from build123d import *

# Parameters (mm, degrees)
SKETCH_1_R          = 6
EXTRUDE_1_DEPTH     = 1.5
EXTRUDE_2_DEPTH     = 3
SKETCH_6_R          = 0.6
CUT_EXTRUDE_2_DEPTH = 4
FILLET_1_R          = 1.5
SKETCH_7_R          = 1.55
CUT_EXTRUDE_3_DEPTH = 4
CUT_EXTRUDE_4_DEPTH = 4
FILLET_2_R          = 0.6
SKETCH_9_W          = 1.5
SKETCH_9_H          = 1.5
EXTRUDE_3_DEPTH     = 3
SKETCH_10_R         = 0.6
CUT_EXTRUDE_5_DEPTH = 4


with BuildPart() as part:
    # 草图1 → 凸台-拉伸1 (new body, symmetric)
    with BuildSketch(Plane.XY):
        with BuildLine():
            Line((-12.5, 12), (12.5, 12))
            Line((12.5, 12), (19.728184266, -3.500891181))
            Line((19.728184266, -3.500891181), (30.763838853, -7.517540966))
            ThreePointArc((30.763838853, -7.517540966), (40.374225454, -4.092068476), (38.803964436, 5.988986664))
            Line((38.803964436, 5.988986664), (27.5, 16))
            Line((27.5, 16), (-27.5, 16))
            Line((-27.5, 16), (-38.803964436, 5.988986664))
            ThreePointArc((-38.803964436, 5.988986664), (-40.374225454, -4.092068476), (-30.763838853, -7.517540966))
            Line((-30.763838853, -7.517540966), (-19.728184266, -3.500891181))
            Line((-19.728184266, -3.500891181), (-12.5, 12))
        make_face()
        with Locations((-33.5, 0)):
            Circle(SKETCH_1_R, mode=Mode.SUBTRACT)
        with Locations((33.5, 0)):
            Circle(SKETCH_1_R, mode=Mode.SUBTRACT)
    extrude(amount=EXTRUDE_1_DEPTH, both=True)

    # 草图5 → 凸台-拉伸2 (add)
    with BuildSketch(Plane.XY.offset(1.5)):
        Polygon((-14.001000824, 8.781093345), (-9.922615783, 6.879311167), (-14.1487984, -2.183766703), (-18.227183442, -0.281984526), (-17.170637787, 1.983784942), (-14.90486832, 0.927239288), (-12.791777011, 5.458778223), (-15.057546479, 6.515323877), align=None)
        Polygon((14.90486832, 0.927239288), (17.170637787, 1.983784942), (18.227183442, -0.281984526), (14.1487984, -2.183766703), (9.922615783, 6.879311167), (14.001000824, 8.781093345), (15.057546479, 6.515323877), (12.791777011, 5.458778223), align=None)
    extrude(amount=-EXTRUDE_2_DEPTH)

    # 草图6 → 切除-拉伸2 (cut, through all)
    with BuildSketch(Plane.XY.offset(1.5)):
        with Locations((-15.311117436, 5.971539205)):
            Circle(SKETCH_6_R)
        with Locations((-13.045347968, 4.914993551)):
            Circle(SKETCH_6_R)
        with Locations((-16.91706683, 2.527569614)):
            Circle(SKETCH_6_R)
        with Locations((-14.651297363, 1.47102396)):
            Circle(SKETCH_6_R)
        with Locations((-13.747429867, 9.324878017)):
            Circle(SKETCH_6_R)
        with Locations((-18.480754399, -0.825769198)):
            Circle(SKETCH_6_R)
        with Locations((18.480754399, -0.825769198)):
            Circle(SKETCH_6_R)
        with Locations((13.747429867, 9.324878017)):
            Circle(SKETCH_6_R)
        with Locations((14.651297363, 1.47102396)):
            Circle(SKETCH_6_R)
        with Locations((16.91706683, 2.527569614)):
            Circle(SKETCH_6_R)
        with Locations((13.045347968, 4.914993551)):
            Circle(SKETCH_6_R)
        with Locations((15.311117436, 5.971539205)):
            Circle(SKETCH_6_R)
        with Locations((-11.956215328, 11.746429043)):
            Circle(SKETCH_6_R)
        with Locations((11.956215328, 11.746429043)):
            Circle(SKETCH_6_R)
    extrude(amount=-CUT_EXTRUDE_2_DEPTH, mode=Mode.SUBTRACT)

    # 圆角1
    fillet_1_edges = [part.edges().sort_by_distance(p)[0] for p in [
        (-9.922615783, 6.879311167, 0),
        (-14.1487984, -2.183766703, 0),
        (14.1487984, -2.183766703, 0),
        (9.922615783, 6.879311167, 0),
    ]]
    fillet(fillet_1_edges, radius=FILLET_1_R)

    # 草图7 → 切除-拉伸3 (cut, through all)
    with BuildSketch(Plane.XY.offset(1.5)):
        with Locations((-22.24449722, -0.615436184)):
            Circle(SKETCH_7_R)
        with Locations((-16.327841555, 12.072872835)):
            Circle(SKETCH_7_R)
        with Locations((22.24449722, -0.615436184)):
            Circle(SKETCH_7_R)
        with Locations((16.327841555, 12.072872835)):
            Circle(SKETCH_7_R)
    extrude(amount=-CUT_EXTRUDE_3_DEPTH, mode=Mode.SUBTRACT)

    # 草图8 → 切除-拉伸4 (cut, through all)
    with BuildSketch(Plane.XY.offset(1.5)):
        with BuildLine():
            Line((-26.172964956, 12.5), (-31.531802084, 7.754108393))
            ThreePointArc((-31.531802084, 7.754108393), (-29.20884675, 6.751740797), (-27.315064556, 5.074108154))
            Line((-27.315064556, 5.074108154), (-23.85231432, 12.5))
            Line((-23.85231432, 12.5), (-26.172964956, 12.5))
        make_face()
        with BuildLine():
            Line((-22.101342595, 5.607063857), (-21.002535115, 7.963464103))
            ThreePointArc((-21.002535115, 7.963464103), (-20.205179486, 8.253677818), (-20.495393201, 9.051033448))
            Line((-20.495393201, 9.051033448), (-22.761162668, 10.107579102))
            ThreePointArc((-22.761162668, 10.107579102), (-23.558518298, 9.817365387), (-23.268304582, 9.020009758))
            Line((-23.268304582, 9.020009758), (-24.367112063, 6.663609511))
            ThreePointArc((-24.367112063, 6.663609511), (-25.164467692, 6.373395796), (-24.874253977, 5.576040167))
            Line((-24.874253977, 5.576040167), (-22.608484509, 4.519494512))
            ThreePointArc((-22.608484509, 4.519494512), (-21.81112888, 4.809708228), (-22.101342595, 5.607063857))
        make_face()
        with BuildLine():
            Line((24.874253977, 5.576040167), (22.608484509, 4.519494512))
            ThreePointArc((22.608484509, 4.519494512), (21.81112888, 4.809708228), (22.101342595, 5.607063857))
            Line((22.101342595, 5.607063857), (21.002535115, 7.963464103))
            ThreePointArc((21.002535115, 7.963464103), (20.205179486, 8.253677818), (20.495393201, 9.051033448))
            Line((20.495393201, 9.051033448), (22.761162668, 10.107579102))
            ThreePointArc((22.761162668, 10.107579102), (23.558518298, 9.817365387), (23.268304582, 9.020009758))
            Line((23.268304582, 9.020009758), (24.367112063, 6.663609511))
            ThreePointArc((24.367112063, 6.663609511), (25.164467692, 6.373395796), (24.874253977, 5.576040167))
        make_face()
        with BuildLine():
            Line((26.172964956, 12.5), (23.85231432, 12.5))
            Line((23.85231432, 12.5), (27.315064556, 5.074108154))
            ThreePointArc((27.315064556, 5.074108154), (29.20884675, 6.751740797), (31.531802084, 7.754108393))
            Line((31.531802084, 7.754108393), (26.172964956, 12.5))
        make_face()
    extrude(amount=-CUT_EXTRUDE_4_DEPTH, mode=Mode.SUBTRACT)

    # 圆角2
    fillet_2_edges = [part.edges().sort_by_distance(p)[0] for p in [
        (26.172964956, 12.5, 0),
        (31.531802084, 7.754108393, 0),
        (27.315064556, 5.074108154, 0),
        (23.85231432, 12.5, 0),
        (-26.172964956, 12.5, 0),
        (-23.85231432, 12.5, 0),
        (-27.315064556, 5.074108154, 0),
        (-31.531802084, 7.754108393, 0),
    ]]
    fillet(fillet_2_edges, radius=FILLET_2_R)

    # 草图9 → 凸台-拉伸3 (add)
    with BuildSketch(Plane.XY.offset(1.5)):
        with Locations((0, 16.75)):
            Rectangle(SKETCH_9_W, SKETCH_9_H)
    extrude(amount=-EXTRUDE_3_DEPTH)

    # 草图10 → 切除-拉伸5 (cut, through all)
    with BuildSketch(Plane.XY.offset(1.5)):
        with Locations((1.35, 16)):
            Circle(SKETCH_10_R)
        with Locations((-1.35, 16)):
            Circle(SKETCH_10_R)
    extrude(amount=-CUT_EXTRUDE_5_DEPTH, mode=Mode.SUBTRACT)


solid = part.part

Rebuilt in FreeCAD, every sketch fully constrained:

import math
import FreeCAD as App
import Part
import Sketcher
from FreeCAD import Vector
Q = App.Units.Quantity


def edges_at(feature, points):
    """Names of the edges that pass closest to the given points."""
    edges = feature.Shape.Edges
    near = lambda p: min(range(len(edges)), key=lambda i: edges[i].distToShape(Part.Vertex(*p))[0])
    return sorted({f"Edge{near(p) + 1}" for p in points})

doc = App.newDocument("Part")
body = doc.addObject("PartDesign::Body", "Body")

# Sketch on XY plane
sketch1 = body.newObject("Sketcher::SketchObject", "Sketch")
sketch1.AttachmentSupport = (doc.getObject("XY_Plane"), [""])
sketch1.MapMode = "FlatFace"
sketch1.addGeometry(Part.LineSegment(Vector(-12, 12, 0), Vector(12, 12, 0)), False)
sketch1.addGeometry(Part.LineSegment(Vector(12, 12, 0), Vector(20, -4, 0)), False)
sketch1.addGeometry(Part.LineSegment(Vector(20, -4, 0), Vector(31, -8, 0)), False)
sketch1.addGeometry(Part.ArcOfCircle(Part.Circle(Vector(34, 0, 0), Vector(0, 0, 1), 8), math.radians(-110), math.radians(48)), False)
sketch1.addGeometry(Part.LineSegment(Vector(39, 6, 0), Vector(28, 16, 0)), False)
sketch1.addGeometry(Part.LineSegment(Vector(28, 16, 0), Vector(-28, 16, 0)), False)
sketch1.addGeometry(Part.LineSegment(Vector(-28, 16, 0), Vector(-39, 6, 0)), False)
sketch1.addGeometry(Part.ArcOfCircle(Part.Circle(Vector(-34, 0, 0), Vector(0, 0, 1), 8), math.radians(132), math.radians(290)), False)
sketch1.addGeometry(Part.LineSegment(Vector(-31, -8, 0), Vector(-20, -4, 0)), False)
sketch1.addGeometry(Part.LineSegment(Vector(-20, -4, 0), Vector(-12, 12, 0)), False)
sketch1.addGeometry(Part.Circle(Vector(-34, 0, 0), Vector(0, 0, 1), 6), False)
sketch1.addGeometry(Part.Circle(Vector(34, 0, 0), Vector(0, 0, 1), 6), False)
sketch1.addConstraint(Sketcher.Constraint("Coincident", 0, 2, 1, 1))
sketch1.addConstraint(Sketcher.Constraint("Coincident", 1, 2, 2, 1))
sketch1.addConstraint(Sketcher.Constraint("Tangent", 2, 2, 3, 1))
sketch1.addConstraint(Sketcher.Constraint("Tangent", 3, 2, 4, 1))
sketch1.addConstraint(Sketcher.Constraint("Coincident", 4, 2, 5, 1))
sketch1.addConstraint(Sketcher.Constraint("Coincident", 5, 2, 6, 1))
sketch1.addConstraint(Sketcher.Constraint("Tangent", 6, 2, 7, 1))
sketch1.addConstraint(Sketcher.Constraint("Tangent", 7, 2, 8, 1))
sketch1.addConstraint(Sketcher.Constraint("Coincident", 8, 2, 9, 1))
sketch1.addConstraint(Sketcher.Constraint("Coincident", 9, 2, 0, 1))
sketch1.addConstraint(Sketcher.Constraint("Horizontal", 0))
sketch1.addConstraint(Sketcher.Constraint("Horizontal", 5))
sketch1.addConstraint(Sketcher.Constraint("Coincident", 10, 3, 7, 3))
sketch1.addConstraint(Sketcher.Constraint("Coincident", 11, 3, 3, 3))
sketch1.addConstraint(Sketcher.Constraint("Equal", 3, 7))
sketch1.addConstraint(Sketcher.Constraint("Equal", 10, 11))
sketch1.addConstraint(Sketcher.Constraint("Symmetric", 3, 3, 7, 3, -1, 1))
sketch1.addConstraint(Sketcher.Constraint("Symmetric", 3, 2, 6, 2, -2))
sketch1.addConstraint(Sketcher.Constraint("Symmetric", 1, 2, 8, 2, -2))
sketch1.addConstraint(Sketcher.Constraint("Equal", 1, 9))
sketch1.addConstraint(Sketcher.Constraint("Diameter", 10, 12.0))
sketch1.addConstraint(Sketcher.Constraint("Radius", 3, 8.0))
sketch1.addConstraint(Sketcher.Constraint("DistanceX", 0, 1, 0, 2, 25.0))
sketch1.addConstraint(Sketcher.Constraint("DistanceX", 5, 2, 5, 1, 55.0))
sketch1.addConstraint(Sketcher.Constraint("Angle", 1, Q("-65 deg")))
sketch1.addConstraint(Sketcher.Constraint("Angle", 2, Q("-20 deg")))
sketch1.addConstraint(Sketcher.Constraint("DistanceY", -1, 1, 0, 2, 12.0))
sketch1.addConstraint(Sketcher.Constraint("DistanceY", -1, 1, 4, 2, 16.0))
sketch1.addConstraint(Sketcher.Constraint("DistanceX", 7, 3, 3, 3, 67.0))
pad1 = body.newObject("PartDesign::Pad", "Pad")
pad1.Profile = sketch1
pad1.Length = 3
pad1.Midplane = True

# Sketch on XY plane
sketch2 = body.newObject("Sketcher::SketchObject", "Sketch001")
sketch2.AttachmentSupport = (doc.getObject("XY_Plane"), [""])
sketch2.MapMode = "FlatFace"
sketch2.AttachmentOffset = App.Placement(Vector(0, 0, 1.5), App.Rotation())
sketch2.addGeometry(Part.LineSegment(Vector(-9.9, 6.9, 0), Vector(-14, 8.8, 0)), False)
sketch2.addGeometry(Part.LineSegment(Vector(-14, 8.8, 0), Vector(-15.1, 6.5, 0)), False)
sketch2.addGeometry(Part.LineSegment(Vector(-15.1, 6.5, 0), Vector(-12.8, 5.5, 0)), False)
sketch2.addGeometry(Part.LineSegment(Vector(-12.8, 5.5, 0), Vector(-14.9, 0.9, 0)), False)
sketch2.addGeometry(Part.LineSegment(Vector(-14.9, 0.9, 0), Vector(-17.2, 2, 0)), False)
sketch2.addGeometry(Part.LineSegment(Vector(-17.2, 2, 0), Vector(-18.2, -0.3, 0)), False)
sketch2.addGeometry(Part.LineSegment(Vector(-18.2, -0.3, 0), Vector(-14.1, -2.2, 0)), False)
sketch2.addGeometry(Part.LineSegment(Vector(-14.1, -2.2, 0), Vector(-9.9, 6.9, 0)), False)
sketch2.addGeometry(Part.LineSegment(Vector(17.2, 2, 0), Vector(14.9, 0.9, 0)), False)
sketch2.addGeometry(Part.LineSegment(Vector(14.9, 0.9, 0), Vector(12.8, 5.5, 0)), False)
sketch2.addGeometry(Part.LineSegment(Vector(12.8, 5.5, 0), Vector(15.1, 6.5, 0)), False)
sketch2.addGeometry(Part.LineSegment(Vector(15.1, 6.5, 0), Vector(14, 8.8, 0)), False)
sketch2.addGeometry(Part.LineSegment(Vector(14, 8.8, 0), Vector(9.9, 6.9, 0)), False)
sketch2.addGeometry(Part.LineSegment(Vector(9.9, 6.9, 0), Vector(14.1, -2.2, 0)), False)
sketch2.addGeometry(Part.LineSegment(Vector(14.1, -2.2, 0), Vector(18.2, -0.3, 0)), False)
sketch2.addGeometry(Part.LineSegment(Vector(18.2, -0.3, 0), Vector(17.2, 2, 0)), False)
sketch2.addConstraint(Sketcher.Constraint("Coincident", 0, 2, 1, 1))
sketch2.addConstraint(Sketcher.Constraint("Coincident", 1, 2, 2, 1))
sketch2.addConstraint(Sketcher.Constraint("Coincident", 2, 2, 3, 1))
sketch2.addConstraint(Sketcher.Constraint("Coincident", 3, 2, 4, 1))
sketch2.addConstraint(Sketcher.Constraint("Coincident", 4, 2, 5, 1))
sketch2.addConstraint(Sketcher.Constraint("Coincident", 5, 2, 6, 1))
sketch2.addConstraint(Sketcher.Constraint("Coincident", 6, 2, 7, 1))
sketch2.addConstraint(Sketcher.Constraint("Coincident", 7, 2, 0, 1))
sketch2.addConstraint(Sketcher.Constraint("Coincident", 8, 2, 9, 1))
sketch2.addConstraint(Sketcher.Constraint("Coincident", 9, 2, 10, 1))
sketch2.addConstraint(Sketcher.Constraint("Coincident", 10, 2, 11, 1))
sketch2.addConstraint(Sketcher.Constraint("Coincident", 11, 2, 12, 1))
sketch2.addConstraint(Sketcher.Constraint("Coincident", 12, 2, 13, 1))
sketch2.addConstraint(Sketcher.Constraint("Coincident", 13, 2, 14, 1))
sketch2.addConstraint(Sketcher.Constraint("Coincident", 14, 2, 15, 1))
sketch2.addConstraint(Sketcher.Constraint("Coincident", 15, 2, 8, 1))
sketch2.addConstraint(Sketcher.Constraint("Symmetric", 3, 2, 8, 2, -2))
sketch2.addConstraint(Sketcher.Constraint("Symmetric", 2, 2, 9, 2, -2))
sketch2.addConstraint(Sketcher.Constraint("Symmetric", 1, 2, 10, 2, -2))
sketch2.addConstraint(Sketcher.Constraint("Symmetric", 0, 2, 11, 2, -2))
sketch2.addConstraint(Sketcher.Constraint("Symmetric", 7, 2, 12, 2, -2))
sketch2.addConstraint(Sketcher.Constraint("Symmetric", 6, 2, 13, 2, -2))
sketch2.addConstraint(Sketcher.Constraint("Symmetric", 5, 2, 14, 2, -2))
sketch2.addConstraint(Sketcher.Constraint("Symmetric", 4, 2, 15, 2, -2))
sketch2.addConstraint(Sketcher.Constraint("Perpendicular", 0, 1))
sketch2.addConstraint(Sketcher.Constraint("Perpendicular", 1, 2))
sketch2.addConstraint(Sketcher.Constraint("Perpendicular", 2, 3))
sketch2.addConstraint(Sketcher.Constraint("Perpendicular", 3, 4))
sketch2.addConstraint(Sketcher.Constraint("Perpendicular", 4, 5))
sketch2.addConstraint(Sketcher.Constraint("Perpendicular", 5, 6))
sketch2.addConstraint(Sketcher.Constraint("Perpendicular", 6, 7))
sketch2.addConstraint(Sketcher.Constraint("Equal", 1, 2))
sketch2.addConstraint(Sketcher.Constraint("Equal", 2, 4))
sketch2.addConstraint(Sketcher.Constraint("Equal", 4, 5))
sketch2.addConstraint(Sketcher.Constraint("Angle", 0, Q("155 deg")))
sketch2.addConstraint(Sketcher.Constraint("Distance", 3, 5.0))
sketch2.addConstraint(Sketcher.Constraint("Distance", 7, 10.0))
sketch2.addConstraint(Sketcher.Constraint("Distance", 0, 4.5))
sketch2.addConstraint(Sketcher.Constraint("DistanceX", 0, 2, -1, 1, 14.001001))
sketch2.addConstraint(Sketcher.Constraint("DistanceY", -1, 1, 2, 2, 5.458778))
pad2 = body.newObject("PartDesign::Pad", "Pad001")
pad2.Profile = sketch2
pad2.Length = 3
pad2.Reversed = True

# Sketch on XY plane
sketch3 = body.newObject("Sketcher::SketchObject", "Sketch002")
sketch3.AttachmentSupport = (doc.getObject("XY_Plane"), [""])
sketch3.MapMode = "FlatFace"
sketch3.AttachmentOffset = App.Placement(Vector(0, 0, 1.5), App.Rotation())
sketch3.addGeometry(Part.Circle(Vector(-15.3, 6, 0), Vector(0, 0, 1), 0.6), False)
sketch3.addGeometry(Part.Circle(Vector(-13, 4.9, 0), Vector(0, 0, 1), 0.6), False)
sketch3.addGeometry(Part.Circle(Vector(-16.9, 2.5, 0), Vector(0, 0, 1), 0.6), False)
sketch3.addGeometry(Part.Circle(Vector(-14.7, 1.5, 0), Vector(0, 0, 1), 0.6), False)
sketch3.addGeometry(Part.Circle(Vector(-13.7, 9.3, 0), Vector(0, 0, 1), 0.6), False)
sketch3.addGeometry(Part.Circle(Vector(-18.5, -0.8, 0), Vector(0, 0, 1), 0.6), False)
sketch3.addGeometry(Part.Circle(Vector(18.5, -0.8, 0), Vector(0, 0, 1), 0.6), False)
sketch3.addGeometry(Part.Circle(Vector(13.7, 9.3, 0), Vector(0, 0, 1), 0.6), False)
sketch3.addGeometry(Part.Circle(Vector(14.7, 1.5, 0), Vector(0, 0, 1), 0.6), False)
sketch3.addGeometry(Part.Circle(Vector(16.9, 2.5, 0), Vector(0, 0, 1), 0.6), False)
sketch3.addGeometry(Part.Circle(Vector(13, 4.9, 0), Vector(0, 0, 1), 0.6), False)
sketch3.addGeometry(Part.Circle(Vector(15.3, 6, 0), Vector(0, 0, 1), 0.6), False)
sketch3.addGeometry(Part.Circle(Vector(-12, 11.7, 0), Vector(0, 0, 1), 0.6), False)
sketch3.addGeometry(Part.Circle(Vector(12, 11.7, 0), Vector(0, 0, 1), 0.6), False)
sketch3.addConstraint(Sketcher.Constraint("Equal", 0, 1))
sketch3.addConstraint(Sketcher.Constraint("Equal", 1, 2))
sketch3.addConstraint(Sketcher.Constraint("Equal", 2, 3))
sketch3.addConstraint(Sketcher.Constraint("Equal", 3, 4))
sketch3.addConstraint(Sketcher.Constraint("Equal", 4, 5))
sketch3.addConstraint(Sketcher.Constraint("Equal", 5, 6))
sketch3.addConstraint(Sketcher.Constraint("Equal", 6, 7))
sketch3.addConstraint(Sketcher.Constraint("Equal", 7, 8))
sketch3.addConstraint(Sketcher.Constraint("Equal", 8, 9))
sketch3.addConstraint(Sketcher.Constraint("Equal", 9, 10))
sketch3.addConstraint(Sketcher.Constraint("Equal", 10, 11))
sketch3.addConstraint(Sketcher.Constraint("Equal", 11, 12))
sketch3.addConstraint(Sketcher.Constraint("Equal", 12, 13))
sketch3.addConstraint(Sketcher.Constraint("Symmetric", 5, 3, 6, 3, -2))
sketch3.addConstraint(Sketcher.Constraint("Symmetric", 4, 3, 7, 3, -2))
sketch3.addConstraint(Sketcher.Constraint("Symmetric", 3, 3, 8, 3, -2))
sketch3.addConstraint(Sketcher.Constraint("Symmetric", 2, 3, 9, 3, -2))
sketch3.addConstraint(Sketcher.Constraint("Symmetric", 1, 3, 10, 3, -2))
sketch3.addConstraint(Sketcher.Constraint("Symmetric", 0, 3, 11, 3, -2))
sketch3.addConstraint(Sketcher.Constraint("Symmetric", 12, 3, 13, 3, -2))
sketch3.addConstraint(Sketcher.Constraint("Diameter", 0, 1.2))
sketch3.addConstraint(Sketcher.Constraint("DistanceY", -1, 1, 0, 3, 5.971539))
sketch3.addConstraint(Sketcher.Constraint("DistanceY", -1, 1, 2, 3, 2.52757))
sketch3.addConstraint(Sketcher.Constraint("DistanceX", 4, 3, -1, 1, 13.74743))
sketch3.addConstraint(Sketcher.Constraint("DistanceY", -1, 1, 4, 3, 9.324878))
sketch3.addConstraint(Sketcher.Constraint("DistanceY", 5, 3, -1, 1, 0.825769))
sketch3.addConstraint(Sketcher.Constraint("DistanceY", -1, 1, 12, 3, 11.746429))
sketch3.addConstraint(Sketcher.Constraint("DistanceX", 0, 3, 1, 3, 2.265769))
sketch3.addConstraint(Sketcher.Constraint("DistanceX", 2, 3, 0, 3, 1.605949))
sketch3.addConstraint(Sketcher.Constraint("DistanceX", 2, 3, 3, 3, 2.265769))
sketch3.addConstraint(Sketcher.Constraint("DistanceY", 3, 3, 1, 3, 3.44397))
sketch3.addConstraint(Sketcher.Constraint("DistanceX", 4, 3, 1, 3, 0.702082))
sketch3.addConstraint(Sketcher.Constraint("DistanceX", 3, 3, 6, 3, 33.132052))
sketch3.addConstraint(Sketcher.Constraint("DistanceX", 2, 3, 12, 3, 4.960852))
sketch3.addConstraint(Sketcher.Constraint("DistanceY", -1, 1, 1, 3, 4.914994))
pocket1 = body.newObject("PartDesign::Pocket", "Pocket")
pocket1.Profile = sketch3
pocket1.Type = "ThroughAll"
doc.recompute()

fillet = body.newObject("PartDesign::Fillet", "Fillet")
fillet.Base = (pocket1, edges_at(pocket1, [
    (-9.923, 6.879, 0),
    (-14.149, -2.184, 0),
    (14.149, -2.184, 0),
    (9.923, 6.879, 0),
]))
fillet.Radius = 1.5

# Sketch on XY plane
sketch4 = body.newObject("Sketcher::SketchObject", "Sketch003")
sketch4.AttachmentSupport = (doc.getObject("XY_Plane"), [""])
sketch4.MapMode = "FlatFace"
sketch4.AttachmentOffset = App.Placement(Vector(0, 0, 1.5), App.Rotation())
sketch4.addGeometry(Part.Circle(Vector(-22.2, -0.6, 0), Vector(0, 0, 1), 1.6), False)
sketch4.addGeometry(Part.Circle(Vector(-16.3, 12.1, 0), Vector(0, 0, 1), 1.6), False)
sketch4.addGeometry(Part.Circle(Vector(22.2, -0.6, 0), Vector(0, 0, 1), 1.6), False)
sketch4.addGeometry(Part.Circle(Vector(16.3, 12.1, 0), Vector(0, 0, 1), 1.6), False)
sketch4.addConstraint(Sketcher.Constraint("Equal", 0, 1))
sketch4.addConstraint(Sketcher.Constraint("Equal", 1, 2))
sketch4.addConstraint(Sketcher.Constraint("Equal", 2, 3))
sketch4.addConstraint(Sketcher.Constraint("Symmetric", 0, 3, 2, 3, -2))
sketch4.addConstraint(Sketcher.Constraint("Symmetric", 1, 3, 3, 3, -2))
sketch4.addConstraint(Sketcher.Constraint("Diameter", 0, 3.1))
sketch4.addConstraint(Sketcher.Constraint("DistanceX", 1, 3, -1, 1, 16.327842))
sketch4.addConstraint(Sketcher.Constraint("DistanceY", 0, 3, 1, 3, 12.688309))
sketch4.addConstraint(Sketcher.Constraint("DistanceX", 1, 3, 2, 3, 38.572339))
sketch4.addConstraint(Sketcher.Constraint("DistanceY", 0, 3, -1, 1, 0.615436))
pocket2 = body.newObject("PartDesign::Pocket", "Pocket001")
pocket2.Profile = sketch4
pocket2.Type = "ThroughAll"

# Sketch on XY plane
sketch5 = body.newObject("Sketcher::SketchObject", "Sketch004")
sketch5.AttachmentSupport = (doc.getObject("XY_Plane"), [""])
sketch5.MapMode = "FlatFace"
sketch5.AttachmentOffset = App.Placement(Vector(0, 0, 1.5), App.Rotation())
sketch5.addGeometry(Part.LineSegment(Vector(-26.2, 12.5, 0), Vector(-31.5, 7.8, 0)), False)
sketch5.addGeometry(Part.ArcOfCircle(Part.Circle(Vector(-33.5, 0, 0), Vector(0, 0, 1), 8), math.radians(39), math.radians(76)), False)
sketch5.addGeometry(Part.LineSegment(Vector(-27.3, 5.1, 0), Vector(-23.9, 12.5, 0)), False)
sketch5.addGeometry(Part.LineSegment(Vector(-23.9, 12.5, 0), Vector(-26.2, 12.5, 0)), False)
sketch5.addGeometry(Part.LineSegment(Vector(-22.1, 5.6, 0), Vector(-21, 8, 0)), False)
sketch5.addGeometry(Part.ArcOfCircle(Part.Circle(Vector(-20.7, 8.5, 0), Vector(0, 0, 1), 0.6), math.radians(-115), math.radians(65)), False)
sketch5.addGeometry(Part.LineSegment(Vector(-20.5, 9.1, 0), Vector(-22.8, 10.1, 0)), False)
sketch5.addGeometry(Part.ArcOfCircle(Part.Circle(Vector(-23, 9.6, 0), Vector(0, 0, 1), 0.6), math.radians(65), math.radians(245)), False)
sketch5.addGeometry(Part.LineSegment(Vector(-23.3, 9, 0), Vector(-24.4, 6.7, 0)), False)
sketch5.addGeometry(Part.ArcOfCircle(Part.Circle(Vector(-24.6, 6.1, 0), Vector(0, 0, 1), 0.6), math.radians(65), math.radians(245)), False)
sketch5.addGeometry(Part.LineSegment(Vector(-24.9, 5.6, 0), Vector(-22.6, 4.5, 0)), False)
sketch5.addGeometry(Part.ArcOfCircle(Part.Circle(Vector(-22.4, 5.1, 0), Vector(0, 0, 1), 0.6), math.radians(-115), math.radians(65)), False)
sketch5.addGeometry(Part.LineSegment(Vector(22.6, 4.5, 0), Vector(24.9, 5.6, 0)), False)
sketch5.addGeometry(Part.ArcOfCircle(Part.Circle(Vector(24.6, 6.1, 0), Vector(0, 0, 1), 0.6), math.radians(-65), math.radians(115)), False)
sketch5.addGeometry(Part.LineSegment(Vector(24.4, 6.7, 0), Vector(23.3, 9, 0)), False)
sketch5.addGeometry(Part.ArcOfCircle(Part.Circle(Vector(23, 9.6, 0), Vector(0, 0, 1), 0.6), math.radians(-65), math.radians(115)), False)
sketch5.addGeometry(Part.LineSegment(Vector(22.8, 10.1, 0), Vector(20.5, 9.1, 0)), False)
sketch5.addGeometry(Part.ArcOfCircle(Part.Circle(Vector(20.7, 8.5, 0), Vector(0, 0, 1), 0.6), math.radians(115), math.radians(295)), False)
sketch5.addGeometry(Part.LineSegment(Vector(21, 8, 0), Vector(22.1, 5.6, 0)), False)
sketch5.addGeometry(Part.ArcOfCircle(Part.Circle(Vector(22.4, 5.1, 0), Vector(0, 0, 1), 0.6), math.radians(115), math.radians(295)), False)
sketch5.addGeometry(Part.LineSegment(Vector(26.2, 12.5, 0), Vector(23.9, 12.5, 0)), False)
sketch5.addGeometry(Part.LineSegment(Vector(23.9, 12.5, 0), Vector(27.3, 5.1, 0)), False)
sketch5.addGeometry(Part.ArcOfCircle(Part.Circle(Vector(33.5, 0, 0), Vector(0, 0, 1), 8), math.radians(104), math.radians(141)), False)
sketch5.addGeometry(Part.LineSegment(Vector(31.5, 7.8, 0), Vector(26.2, 12.5, 0)), False)
sketch5.addConstraint(Sketcher.Constraint("Coincident", 0, 2, 1, 2))
sketch5.addConstraint(Sketcher.Constraint("Coincident", 1, 1, 2, 1))
sketch5.addConstraint(Sketcher.Constraint("Coincident", 2, 2, 3, 1))
sketch5.addConstraint(Sketcher.Constraint("Coincident", 3, 2, 0, 1))
sketch5.addConstraint(Sketcher.Constraint("Coincident", 4, 2, 5, 1))
sketch5.addConstraint(Sketcher.Constraint("Tangent", 5, 2, 6, 1))
sketch5.addConstraint(Sketcher.Constraint("Tangent", 6, 2, 7, 1))
sketch5.addConstraint(Sketcher.Constraint("Coincident", 7, 2, 8, 1))
sketch5.addConstraint(Sketcher.Constraint("Coincident", 8, 2, 9, 1))
sketch5.addConstraint(Sketcher.Constraint("Tangent", 9, 2, 10, 1))
sketch5.addConstraint(Sketcher.Constraint("Tangent", 10, 2, 11, 1))
sketch5.addConstraint(Sketcher.Constraint("Coincident", 11, 2, 4, 1))
sketch5.addConstraint(Sketcher.Constraint("Tangent", 12, 2, 13, 1))
sketch5.addConstraint(Sketcher.Constraint("Coincident", 13, 2, 14, 1))
sketch5.addConstraint(Sketcher.Constraint("Coincident", 14, 2, 15, 1))
sketch5.addConstraint(Sketcher.Constraint("Tangent", 15, 2, 16, 1))
sketch5.addConstraint(Sketcher.Constraint("Tangent", 16, 2, 17, 1))
sketch5.addConstraint(Sketcher.Constraint("Coincident", 17, 2, 18, 1))
sketch5.addConstraint(Sketcher.Constraint("Coincident", 18, 2, 19, 1))
sketch5.addConstraint(Sketcher.Constraint("Tangent", 19, 2, 12, 1))
sketch5.addConstraint(Sketcher.Constraint("Coincident", 20, 2, 21, 1))
sketch5.addConstraint(Sketcher.Constraint("Coincident", 21, 2, 22, 2))
sketch5.addConstraint(Sketcher.Constraint("Coincident", 22, 1, 23, 1))
sketch5.addConstraint(Sketcher.Constraint("Coincident", 23, 2, 20, 1))
sketch5.addConstraint(Sketcher.Constraint("Horizontal", 3))
sketch5.addConstraint(Sketcher.Constraint("Horizontal", 20))
sketch5.addConstraint(Sketcher.Constraint("Equal", 5, 7))
sketch5.addConstraint(Sketcher.Constraint("Equal", 7, 9))
sketch5.addConstraint(Sketcher.Constraint("Equal", 9, 11))
sketch5.addConstraint(Sketcher.Constraint("Equal", 11, 13))
sketch5.addConstraint(Sketcher.Constraint("Equal", 13, 15))
sketch5.addConstraint(Sketcher.Constraint("Equal", 15, 17))
sketch5.addConstraint(Sketcher.Constraint("Equal", 17, 19))
sketch5.addConstraint(Sketcher.Constraint("Equal", 1, 22))
sketch5.addConstraint(Sketcher.Constraint("Symmetric", 1, 3, 22, 3, -1, 1))
sketch5.addConstraint(Sketcher.Constraint("Symmetric", 9, 3, 13, 3, -2))
sketch5.addConstraint(Sketcher.Constraint("Symmetric", 7, 3, 15, 3, -2))
sketch5.addConstraint(Sketcher.Constraint("Symmetric", 5, 3, 17, 3, -2))
sketch5.addConstraint(Sketcher.Constraint("Symmetric", 11, 3, 19, 3, -2))
sketch5.addConstraint(Sketcher.Constraint("Symmetric", 2, 2, 20, 2, -2))
sketch5.addConstraint(Sketcher.Constraint("Symmetric", 1, 1, 21, 2, -2))
sketch5.addConstraint(Sketcher.Constraint("Parallel", 2, 4))
sketch5.addConstraint(Sketcher.Constraint("Perpendicular", 4, 6))
sketch5.addConstraint(Sketcher.Constraint("Perpendicular", 6, 8))
sketch5.addConstraint(Sketcher.Constraint("Perpendicular", 8, 10))
sketch5.addConstraint(Sketcher.Constraint("Perpendicular", 12, 14))
sketch5.addConstraint(Sketcher.Constraint("Perpendicular", 16, 18))
sketch5.addConstraint(Sketcher.Constraint("Horizontal", 8, 2, 13, 2))
sketch5.addConstraint(Sketcher.Constraint("Horizontal", 4, 2, 17, 2))
sketch5.addConstraint(Sketcher.Constraint("Horizontal", 0, 2, 22, 1))
sketch5.addConstraint(Sketcher.Constraint("Equal", 3, 20))
sketch5.addConstraint(Sketcher.Constraint("Equal", 6, 10))
sketch5.addConstraint(Sketcher.Constraint("Radius", 1, 8.0))
sketch5.addConstraint(Sketcher.Constraint("Radius", 5, 0.6))
sketch5.addConstraint(Sketcher.Constraint("Angle", 2, Q("65 deg")))
sketch5.addConstraint(Sketcher.Constraint("Distance", 4, 2.6))
sketch5.addConstraint(Sketcher.Constraint("Distance", 6, 2.5))
sketch5.addConstraint(Sketcher.Constraint("DistanceX", 1, 3, -1, 1, 33.5))
sketch5.addConstraint(Sketcher.Constraint("DistanceY", -1, 1, 2, 2, 12.5))
sketch5.addConstraint(Sketcher.Constraint("DistanceY", 1, 1, 0, 2, 2.68))
sketch5.addConstraint(Sketcher.Constraint("DistanceX", 3, 2, 5, 3, 5.424001))
sketch5.addConstraint(Sketcher.Constraint("DistanceX", 3, 2, 3, 1, 2.320651))
sketch5.addConstraint(Sketcher.Constraint("DistanceX", 1, 1, 5, 3, 6.5661))
sketch5.addConstraint(Sketcher.Constraint("DistanceX", 2, 2, 11, 3, 1.497401))
sketch5.addConstraint(Sketcher.Constraint("DistanceX", 7, 3, 4, 2, 2.012199))
sketch5.addConstraint(Sketcher.Constraint("DistanceX", 8, 2, 11, 3, 2.012199))
sketch5.addConstraint(Sketcher.Constraint("DistanceY", 1, 1, 8, 2, 1.589501))
pocket3 = body.newObject("PartDesign::Pocket", "Pocket002")
pocket3.Profile = sketch5
pocket3.Type = "ThroughAll"
doc.recompute()

fillet2 = body.newObject("PartDesign::Fillet", "Fillet001")
fillet2.Base = (pocket3, edges_at(pocket3, [
    (26.173, 12.5, 0),
    (31.532, 7.754, 0),
    (27.315, 5.074, 0),
    (23.852, 12.5, 0),
    (-26.173, 12.5, 0),
    (-23.852, 12.5, 0),
    (-27.315, 5.074, 0),
    (-31.532, 7.754, 0),
]))
fillet2.Radius = 0.6

# Sketch on XY plane
sketch6 = body.newObject("Sketcher::SketchObject", "Sketch005")
sketch6.AttachmentSupport = (doc.getObject("XY_Plane"), [""])
sketch6.MapMode = "FlatFace"
sketch6.AttachmentOffset = App.Placement(Vector(0, 0, 1.5), App.Rotation())
sketch6.addGeometry(Part.LineSegment(Vector(-0.8, 17.5, 0), Vector(-0.8, 16, 0)), False)
sketch6.addGeometry(Part.LineSegment(Vector(-0.8, 16, 0), Vector(0.8, 16, 0)), False)
sketch6.addGeometry(Part.LineSegment(Vector(0.8, 16, 0), Vector(0.8, 17.5, 0)), False)
sketch6.addGeometry(Part.LineSegment(Vector(0.8, 17.5, 0), Vector(-0.8, 17.5, 0)), False)
sketch6.addConstraint(Sketcher.Constraint("Coincident", 0, 2, 1, 1))
sketch6.addConstraint(Sketcher.Constraint("Coincident", 1, 2, 2, 1))
sketch6.addConstraint(Sketcher.Constraint("Coincident", 2, 2, 3, 1))
sketch6.addConstraint(Sketcher.Constraint("Coincident", 3, 2, 0, 1))
sketch6.addConstraint(Sketcher.Constraint("Vertical", 0))
sketch6.addConstraint(Sketcher.Constraint("Horizontal", 1))
sketch6.addConstraint(Sketcher.Constraint("Vertical", 2))
sketch6.addConstraint(Sketcher.Constraint("Horizontal", 3))
sketch6.addConstraint(Sketcher.Constraint("Equal", 3, 0))
sketch6.addConstraint(Sketcher.Constraint("DistanceX", 1, 1, 1, 2, 1.5))
sketch6.addConstraint(Sketcher.Constraint("DistanceY", -1, 1, 0, 2, 16.0))
sketch6.addConstraint(Sketcher.Constraint("DistanceX", 0, 2, -1, 1, 0.75))
pad3 = body.newObject("PartDesign::Pad", "Pad002")
pad3.Profile = sketch6
pad3.Length = 3
pad3.Reversed = True

# Sketch on XY plane
sketch7 = body.newObject("Sketcher::SketchObject", "Sketch006")
sketch7.AttachmentSupport = (doc.getObject("XY_Plane"), [""])
sketch7.MapMode = "FlatFace"
sketch7.AttachmentOffset = App.Placement(Vector(0, 0, 1.5), App.Rotation())
sketch7.addGeometry(Part.Circle(Vector(1.4, 16, 0), Vector(0, 0, 1), 0.6), False)
sketch7.addGeometry(Part.Circle(Vector(-1.4, 16, 0), Vector(0, 0, 1), 0.6), False)
sketch7.addConstraint(Sketcher.Constraint("Equal", 0, 1))
sketch7.addConstraint(Sketcher.Constraint("Symmetric", 0, 3, 1, 3, -2))
sketch7.addConstraint(Sketcher.Constraint("Diameter", 0, 1.2))
sketch7.addConstraint(Sketcher.Constraint("DistanceY", -1, 1, 0, 3, 16.0))
sketch7.addConstraint(Sketcher.Constraint("DistanceX", 1, 3, 0, 3, 2.7))
pocket4 = body.newObject("PartDesign::Pocket", "Pocket003")
pocket4.Profile = sketch7
pocket4.Type = "ThroughAll"

doc.recompute()
